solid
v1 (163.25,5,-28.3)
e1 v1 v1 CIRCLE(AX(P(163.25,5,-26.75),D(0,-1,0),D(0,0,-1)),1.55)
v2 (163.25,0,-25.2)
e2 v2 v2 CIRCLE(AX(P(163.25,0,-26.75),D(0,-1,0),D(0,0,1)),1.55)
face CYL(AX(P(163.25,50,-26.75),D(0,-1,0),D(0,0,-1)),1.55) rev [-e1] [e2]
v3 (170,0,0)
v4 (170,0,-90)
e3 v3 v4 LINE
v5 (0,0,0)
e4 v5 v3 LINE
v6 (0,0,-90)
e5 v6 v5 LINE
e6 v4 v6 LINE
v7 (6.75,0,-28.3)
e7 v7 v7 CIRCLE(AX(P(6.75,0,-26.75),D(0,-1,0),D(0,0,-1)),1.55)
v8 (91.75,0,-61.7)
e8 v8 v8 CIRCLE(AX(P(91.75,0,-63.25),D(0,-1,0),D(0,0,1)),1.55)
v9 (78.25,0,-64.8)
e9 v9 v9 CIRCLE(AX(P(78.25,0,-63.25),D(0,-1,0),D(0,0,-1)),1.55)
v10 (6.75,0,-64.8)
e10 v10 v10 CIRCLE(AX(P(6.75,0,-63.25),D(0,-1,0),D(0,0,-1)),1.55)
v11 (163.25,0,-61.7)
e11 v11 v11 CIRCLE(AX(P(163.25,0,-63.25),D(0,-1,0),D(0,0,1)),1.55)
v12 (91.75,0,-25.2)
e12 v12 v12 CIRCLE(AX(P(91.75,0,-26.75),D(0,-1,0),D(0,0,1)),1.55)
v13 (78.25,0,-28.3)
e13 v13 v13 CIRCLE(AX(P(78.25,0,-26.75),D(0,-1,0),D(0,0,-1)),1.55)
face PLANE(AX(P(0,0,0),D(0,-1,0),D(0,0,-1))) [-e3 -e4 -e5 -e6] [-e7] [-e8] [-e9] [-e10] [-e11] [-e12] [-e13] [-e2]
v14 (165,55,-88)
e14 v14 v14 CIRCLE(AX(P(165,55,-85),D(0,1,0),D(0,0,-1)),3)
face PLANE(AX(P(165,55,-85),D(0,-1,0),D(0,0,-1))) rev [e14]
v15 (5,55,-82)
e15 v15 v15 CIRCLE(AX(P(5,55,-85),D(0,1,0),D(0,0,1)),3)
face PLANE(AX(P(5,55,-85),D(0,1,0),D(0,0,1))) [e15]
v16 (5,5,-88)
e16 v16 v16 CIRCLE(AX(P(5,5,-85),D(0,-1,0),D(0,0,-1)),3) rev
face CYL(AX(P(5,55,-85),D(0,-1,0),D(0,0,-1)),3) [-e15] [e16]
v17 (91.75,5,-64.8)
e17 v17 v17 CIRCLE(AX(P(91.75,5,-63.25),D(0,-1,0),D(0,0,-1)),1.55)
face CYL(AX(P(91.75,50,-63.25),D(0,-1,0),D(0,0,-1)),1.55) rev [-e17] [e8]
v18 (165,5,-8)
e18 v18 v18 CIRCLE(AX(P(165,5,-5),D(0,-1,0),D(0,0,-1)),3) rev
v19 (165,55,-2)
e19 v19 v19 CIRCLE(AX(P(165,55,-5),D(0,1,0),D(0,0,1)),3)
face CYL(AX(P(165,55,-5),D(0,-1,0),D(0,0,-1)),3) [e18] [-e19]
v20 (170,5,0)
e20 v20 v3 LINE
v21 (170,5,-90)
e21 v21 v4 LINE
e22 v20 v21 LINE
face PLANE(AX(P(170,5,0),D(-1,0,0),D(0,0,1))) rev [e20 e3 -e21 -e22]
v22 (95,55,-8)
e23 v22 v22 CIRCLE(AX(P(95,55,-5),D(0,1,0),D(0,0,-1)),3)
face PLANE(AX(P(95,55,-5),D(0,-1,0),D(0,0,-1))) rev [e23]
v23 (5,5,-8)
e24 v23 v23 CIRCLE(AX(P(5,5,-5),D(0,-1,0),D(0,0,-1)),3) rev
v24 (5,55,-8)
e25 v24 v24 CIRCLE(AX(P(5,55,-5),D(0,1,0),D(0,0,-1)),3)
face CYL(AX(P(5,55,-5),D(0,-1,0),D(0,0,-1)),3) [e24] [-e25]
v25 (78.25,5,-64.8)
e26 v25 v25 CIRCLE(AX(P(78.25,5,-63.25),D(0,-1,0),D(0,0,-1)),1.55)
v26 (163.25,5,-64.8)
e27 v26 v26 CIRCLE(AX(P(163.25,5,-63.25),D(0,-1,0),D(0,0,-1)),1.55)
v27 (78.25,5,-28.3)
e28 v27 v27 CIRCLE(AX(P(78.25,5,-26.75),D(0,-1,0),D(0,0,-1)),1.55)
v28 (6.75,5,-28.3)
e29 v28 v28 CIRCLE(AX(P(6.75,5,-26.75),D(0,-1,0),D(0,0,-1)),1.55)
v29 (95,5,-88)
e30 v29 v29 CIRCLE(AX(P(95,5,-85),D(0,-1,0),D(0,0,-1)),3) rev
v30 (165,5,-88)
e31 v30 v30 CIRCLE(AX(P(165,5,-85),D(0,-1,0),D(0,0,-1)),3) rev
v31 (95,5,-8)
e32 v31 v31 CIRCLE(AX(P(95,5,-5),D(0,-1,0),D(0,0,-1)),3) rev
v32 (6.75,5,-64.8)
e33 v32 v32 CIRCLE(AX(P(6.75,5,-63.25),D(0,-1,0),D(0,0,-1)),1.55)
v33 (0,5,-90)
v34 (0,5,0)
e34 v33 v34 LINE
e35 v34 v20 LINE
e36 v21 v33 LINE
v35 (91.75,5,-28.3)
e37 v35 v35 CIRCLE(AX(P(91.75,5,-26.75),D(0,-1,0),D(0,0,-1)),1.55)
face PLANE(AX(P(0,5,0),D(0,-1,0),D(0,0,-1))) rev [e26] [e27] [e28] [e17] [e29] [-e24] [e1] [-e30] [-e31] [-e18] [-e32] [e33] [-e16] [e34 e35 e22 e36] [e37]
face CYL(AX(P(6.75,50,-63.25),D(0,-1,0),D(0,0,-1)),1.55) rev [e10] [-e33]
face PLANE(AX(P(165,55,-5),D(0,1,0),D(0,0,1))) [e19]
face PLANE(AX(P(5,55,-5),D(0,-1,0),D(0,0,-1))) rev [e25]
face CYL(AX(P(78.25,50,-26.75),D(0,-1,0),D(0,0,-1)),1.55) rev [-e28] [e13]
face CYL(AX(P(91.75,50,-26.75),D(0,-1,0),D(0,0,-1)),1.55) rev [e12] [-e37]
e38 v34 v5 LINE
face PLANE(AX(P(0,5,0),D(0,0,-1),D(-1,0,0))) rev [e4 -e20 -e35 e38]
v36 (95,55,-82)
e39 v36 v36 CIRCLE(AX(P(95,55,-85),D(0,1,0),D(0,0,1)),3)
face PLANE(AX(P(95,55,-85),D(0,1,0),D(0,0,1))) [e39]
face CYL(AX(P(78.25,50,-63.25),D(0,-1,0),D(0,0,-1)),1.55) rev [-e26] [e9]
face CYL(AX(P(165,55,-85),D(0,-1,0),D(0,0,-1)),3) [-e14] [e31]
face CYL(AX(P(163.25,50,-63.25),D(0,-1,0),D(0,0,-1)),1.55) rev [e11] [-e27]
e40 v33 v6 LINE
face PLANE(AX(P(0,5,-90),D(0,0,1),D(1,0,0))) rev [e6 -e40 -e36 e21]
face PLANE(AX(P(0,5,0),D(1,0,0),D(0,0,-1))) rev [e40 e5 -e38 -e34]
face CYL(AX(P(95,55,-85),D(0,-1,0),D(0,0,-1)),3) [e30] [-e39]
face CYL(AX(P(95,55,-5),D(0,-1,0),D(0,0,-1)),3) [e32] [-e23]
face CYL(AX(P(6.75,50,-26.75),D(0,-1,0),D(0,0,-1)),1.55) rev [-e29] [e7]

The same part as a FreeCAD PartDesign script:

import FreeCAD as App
import Part
import Sketcher

V = App.Vector

doc = App.newDocument("Part")
body = doc.addObject("PartDesign::Body", "Body")

# Sketch on XZ plane
sketch1 = body.newObject("Sketcher::SketchObject", "Sketch")
sketch1.AttachmentSupport = (doc.getObject("XZ_Plane"), [""])
sketch1.MapMode = "FlatFace"
sketch1.addGeometry([
    Part.LineSegment(V(0, -90, 0), V(0, 0, 0)),
    Part.LineSegment(V(0, 0, 0), V(170, 0, 0)),
    Part.LineSegment(V(170, 0, 0), V(170, -90, 0)),
    Part.LineSegment(V(170, -90, 0), V(0, -90, 0)),
], False)
sketch1.addConstraint([
    Sketcher.Constraint("Coincident", 0, 2, 1, 1),
    Sketcher.Constraint("Coincident", 1, 2, 2, 1),
    Sketcher.Constraint("Coincident", 2, 2, 3, 1),
    Sketcher.Constraint("Coincident", 3, 2, 0, 1),
    Sketcher.Constraint("Vertical", 0),
    Sketcher.Constraint("Horizontal", 1),
    Sketcher.Constraint("Vertical", 2),
    Sketcher.Constraint("Horizontal", 3),
    Sketcher.Constraint("Coincident", 0, 2, -1, 1),
    Sketcher.Constraint("DistanceX", 1, 1, 1, 2, 170.0),
    Sketcher.Constraint("DistanceY", 0, 1, 0, 2, 90.0),
])
pad1 = body.newObject("PartDesign::Pad", "Pad")
pad1.Profile = sketch1
pad1.Length = 5
pad1.Reversed = True

# Sketch on XZ plane
sketch2 = body.newObject("Sketcher::SketchObject", "Sketch001")
sketch2.AttachmentSupport = (doc.getObject("XZ_Plane"), [""])
sketch2.MapMode = "FlatFace"
sketch2.AttachmentOffset = App.Placement(V(0, 0, -5), App.Rotation())
sketch2.addGeometry([
    Part.Circle(V(5, -85, 0), V(0, 0, 1), 3),  # 0
    Part.Circle(V(5, -5, 0), V(0, 0, 1), 3),  # 1
    Part.Circle(V(165, -5, 0), V(0, 0, 1), 3),  # 2
    Part.Circle(V(165, -85, 0), V(0, 0, 1), 3),  # 3
    Part.Circle(V(95, -85, 0), V(0, 0, 1), 3),  # 4
    Part.Circle(V(95, -5, 0), V(0, 0, 1), 3),  # 5
], False)
sketch2.addConstraint([
    Sketcher.Constraint("Equal", 0, 1),
    Sketcher.Constraint("Equal", 1, 2),
    Sketcher.Constraint("Equal", 2, 3),
    Sketcher.Constraint("Equal", 3, 4),
    Sketcher.Constraint("Equal", 4, 5),
    Sketcher.Constraint("Horizontal", 1, 3, 2, 3),
    Sketcher.Constraint("Horizontal", 0, 3, 3, 3),
    Sketcher.Constraint("Horizontal", 3, 3, 4, 3),
    Sketcher.Constraint("Horizontal", 2, 3, 5, 3),
    Sketcher.Constraint("Vertical", 0, 3, 1, 3),
    Sketcher.Constraint("Vertical", 2, 3, 3, 3),
    Sketcher.Constraint("Vertical", 4, 3, 5, 3),
    Sketcher.Constraint("Diameter", 0, 6.0),
    Sketcher.Constraint("DistanceX", -1, 1, 0, 3, 5.0),
    Sketcher.Constraint("DistanceY", 0, 3, -1, 1, 85.0),
    Sketcher.Constraint("DistanceY", 1, 3, -1, 1, 5.0),
    Sketcher.Constraint("DistanceX", -1, 1, 2, 3, 165.0),
    Sketcher.Constraint("DistanceX", -1, 1, 4, 3, 95.0),
])
pad2 = body.newObject("PartDesign::Pad", "Pad001")
pad2.Profile = sketch2
pad2.Length = 50
pad2.Reversed = True

# Sketch on XZ plane
sketch3 = body.newObject("Sketcher::SketchObject", "Sketch002")
sketch3.AttachmentSupport = (doc.getObject("XZ_Plane"), [""])
sketch3.MapMode = "FlatFace"
sketch3.addGeometry([
    Part.Circle(V(6.75, -26.75, 0), V(0, 0, 1), 1.55),  # 0
    Part.Circle(V(78.25, -26.75, 0), V(0, 0, 1), 1.55),  # 1
    Part.Circle(V(78.25, -63.25, 0), V(0, 0, 1), 1.55),  # 2
    Part.Circle(V(6.75, -63.25, 0), V(0, 0, 1), 1.55),  # 3
    Part.Circle(V(163.25, -63.25, 0), V(0, 0, 1), 1.55),  # 4
    Part.Circle(V(91.75, -63.25, 0), V(0, 0, 1), 1.55),  # 5
    Part.Circle(V(91.75, -26.75, 0), V(0, 0, 1), 1.55),  # 6
    Part.Circle(V(163.25, -26.75, 0), V(0, 0, 1), 1.55),  # 7
], False)
sketch3.addConstraint([
    Sketcher.Constraint("Equal", 0, 1),
    Sketcher.Constraint("Equal", 1, 2),
    Sketcher.Constraint("Equal", 2, 3),
    Sketcher.Constraint("Equal", 3, 4),
    Sketcher.Constraint("Equal", 4, 5),
    Sketcher.Constraint("Equal", 5, 6),
    Sketcher.Constraint("Equal", 6, 7),
    Sketcher.Constraint("Horizontal", 0, 3, 1, 3),
    Sketcher.Constraint("Horizontal", 2, 3, 3, 3),
    Sketcher.Constraint("Horizontal", 3, 3, 4, 3),
    Sketcher.Constraint("Horizontal", 4, 3, 5, 3),
    Sketcher.Constraint("Horizontal", 1, 3, 6, 3),
    Sketcher.Constraint("Horizontal", 6, 3, 7, 3),
    Sketcher.Constraint("Vertical", 1, 3, 2, 3),
    Sketcher.Constraint("Vertical", 0, 3, 3, 3),
    Sketcher.Constraint("Vertical", 5, 3, 6, 3),
    Sketcher.Constraint("Vertical", 4, 3, 7, 3),
    Sketcher.Constraint("Diameter", 0, 3.1),
    Sketcher.Constraint("DistanceX", 2, 3, 4, 3, 85.0),
    Sketcher.Constraint("DistanceX", 3, 3, 5, 3, 85.0),
    Sketcher.Constraint("DistanceX", 0, 3, 1, 3, 71.5),
    Sketcher.Constraint("DistanceY", 2, 3, 1, 3, 36.5),
    Sketcher.Constraint("DistanceX", -1, 1, 0, 3, 6.75),
    Sketcher.Constraint("DistanceY", 0, 3, -1, 1, 26.75),
])
pocket1 = body.newObject("PartDesign::Pocket", "Pocket")
pocket1.Profile = sketch3
pocket1.Length = 50

doc.recompute()
